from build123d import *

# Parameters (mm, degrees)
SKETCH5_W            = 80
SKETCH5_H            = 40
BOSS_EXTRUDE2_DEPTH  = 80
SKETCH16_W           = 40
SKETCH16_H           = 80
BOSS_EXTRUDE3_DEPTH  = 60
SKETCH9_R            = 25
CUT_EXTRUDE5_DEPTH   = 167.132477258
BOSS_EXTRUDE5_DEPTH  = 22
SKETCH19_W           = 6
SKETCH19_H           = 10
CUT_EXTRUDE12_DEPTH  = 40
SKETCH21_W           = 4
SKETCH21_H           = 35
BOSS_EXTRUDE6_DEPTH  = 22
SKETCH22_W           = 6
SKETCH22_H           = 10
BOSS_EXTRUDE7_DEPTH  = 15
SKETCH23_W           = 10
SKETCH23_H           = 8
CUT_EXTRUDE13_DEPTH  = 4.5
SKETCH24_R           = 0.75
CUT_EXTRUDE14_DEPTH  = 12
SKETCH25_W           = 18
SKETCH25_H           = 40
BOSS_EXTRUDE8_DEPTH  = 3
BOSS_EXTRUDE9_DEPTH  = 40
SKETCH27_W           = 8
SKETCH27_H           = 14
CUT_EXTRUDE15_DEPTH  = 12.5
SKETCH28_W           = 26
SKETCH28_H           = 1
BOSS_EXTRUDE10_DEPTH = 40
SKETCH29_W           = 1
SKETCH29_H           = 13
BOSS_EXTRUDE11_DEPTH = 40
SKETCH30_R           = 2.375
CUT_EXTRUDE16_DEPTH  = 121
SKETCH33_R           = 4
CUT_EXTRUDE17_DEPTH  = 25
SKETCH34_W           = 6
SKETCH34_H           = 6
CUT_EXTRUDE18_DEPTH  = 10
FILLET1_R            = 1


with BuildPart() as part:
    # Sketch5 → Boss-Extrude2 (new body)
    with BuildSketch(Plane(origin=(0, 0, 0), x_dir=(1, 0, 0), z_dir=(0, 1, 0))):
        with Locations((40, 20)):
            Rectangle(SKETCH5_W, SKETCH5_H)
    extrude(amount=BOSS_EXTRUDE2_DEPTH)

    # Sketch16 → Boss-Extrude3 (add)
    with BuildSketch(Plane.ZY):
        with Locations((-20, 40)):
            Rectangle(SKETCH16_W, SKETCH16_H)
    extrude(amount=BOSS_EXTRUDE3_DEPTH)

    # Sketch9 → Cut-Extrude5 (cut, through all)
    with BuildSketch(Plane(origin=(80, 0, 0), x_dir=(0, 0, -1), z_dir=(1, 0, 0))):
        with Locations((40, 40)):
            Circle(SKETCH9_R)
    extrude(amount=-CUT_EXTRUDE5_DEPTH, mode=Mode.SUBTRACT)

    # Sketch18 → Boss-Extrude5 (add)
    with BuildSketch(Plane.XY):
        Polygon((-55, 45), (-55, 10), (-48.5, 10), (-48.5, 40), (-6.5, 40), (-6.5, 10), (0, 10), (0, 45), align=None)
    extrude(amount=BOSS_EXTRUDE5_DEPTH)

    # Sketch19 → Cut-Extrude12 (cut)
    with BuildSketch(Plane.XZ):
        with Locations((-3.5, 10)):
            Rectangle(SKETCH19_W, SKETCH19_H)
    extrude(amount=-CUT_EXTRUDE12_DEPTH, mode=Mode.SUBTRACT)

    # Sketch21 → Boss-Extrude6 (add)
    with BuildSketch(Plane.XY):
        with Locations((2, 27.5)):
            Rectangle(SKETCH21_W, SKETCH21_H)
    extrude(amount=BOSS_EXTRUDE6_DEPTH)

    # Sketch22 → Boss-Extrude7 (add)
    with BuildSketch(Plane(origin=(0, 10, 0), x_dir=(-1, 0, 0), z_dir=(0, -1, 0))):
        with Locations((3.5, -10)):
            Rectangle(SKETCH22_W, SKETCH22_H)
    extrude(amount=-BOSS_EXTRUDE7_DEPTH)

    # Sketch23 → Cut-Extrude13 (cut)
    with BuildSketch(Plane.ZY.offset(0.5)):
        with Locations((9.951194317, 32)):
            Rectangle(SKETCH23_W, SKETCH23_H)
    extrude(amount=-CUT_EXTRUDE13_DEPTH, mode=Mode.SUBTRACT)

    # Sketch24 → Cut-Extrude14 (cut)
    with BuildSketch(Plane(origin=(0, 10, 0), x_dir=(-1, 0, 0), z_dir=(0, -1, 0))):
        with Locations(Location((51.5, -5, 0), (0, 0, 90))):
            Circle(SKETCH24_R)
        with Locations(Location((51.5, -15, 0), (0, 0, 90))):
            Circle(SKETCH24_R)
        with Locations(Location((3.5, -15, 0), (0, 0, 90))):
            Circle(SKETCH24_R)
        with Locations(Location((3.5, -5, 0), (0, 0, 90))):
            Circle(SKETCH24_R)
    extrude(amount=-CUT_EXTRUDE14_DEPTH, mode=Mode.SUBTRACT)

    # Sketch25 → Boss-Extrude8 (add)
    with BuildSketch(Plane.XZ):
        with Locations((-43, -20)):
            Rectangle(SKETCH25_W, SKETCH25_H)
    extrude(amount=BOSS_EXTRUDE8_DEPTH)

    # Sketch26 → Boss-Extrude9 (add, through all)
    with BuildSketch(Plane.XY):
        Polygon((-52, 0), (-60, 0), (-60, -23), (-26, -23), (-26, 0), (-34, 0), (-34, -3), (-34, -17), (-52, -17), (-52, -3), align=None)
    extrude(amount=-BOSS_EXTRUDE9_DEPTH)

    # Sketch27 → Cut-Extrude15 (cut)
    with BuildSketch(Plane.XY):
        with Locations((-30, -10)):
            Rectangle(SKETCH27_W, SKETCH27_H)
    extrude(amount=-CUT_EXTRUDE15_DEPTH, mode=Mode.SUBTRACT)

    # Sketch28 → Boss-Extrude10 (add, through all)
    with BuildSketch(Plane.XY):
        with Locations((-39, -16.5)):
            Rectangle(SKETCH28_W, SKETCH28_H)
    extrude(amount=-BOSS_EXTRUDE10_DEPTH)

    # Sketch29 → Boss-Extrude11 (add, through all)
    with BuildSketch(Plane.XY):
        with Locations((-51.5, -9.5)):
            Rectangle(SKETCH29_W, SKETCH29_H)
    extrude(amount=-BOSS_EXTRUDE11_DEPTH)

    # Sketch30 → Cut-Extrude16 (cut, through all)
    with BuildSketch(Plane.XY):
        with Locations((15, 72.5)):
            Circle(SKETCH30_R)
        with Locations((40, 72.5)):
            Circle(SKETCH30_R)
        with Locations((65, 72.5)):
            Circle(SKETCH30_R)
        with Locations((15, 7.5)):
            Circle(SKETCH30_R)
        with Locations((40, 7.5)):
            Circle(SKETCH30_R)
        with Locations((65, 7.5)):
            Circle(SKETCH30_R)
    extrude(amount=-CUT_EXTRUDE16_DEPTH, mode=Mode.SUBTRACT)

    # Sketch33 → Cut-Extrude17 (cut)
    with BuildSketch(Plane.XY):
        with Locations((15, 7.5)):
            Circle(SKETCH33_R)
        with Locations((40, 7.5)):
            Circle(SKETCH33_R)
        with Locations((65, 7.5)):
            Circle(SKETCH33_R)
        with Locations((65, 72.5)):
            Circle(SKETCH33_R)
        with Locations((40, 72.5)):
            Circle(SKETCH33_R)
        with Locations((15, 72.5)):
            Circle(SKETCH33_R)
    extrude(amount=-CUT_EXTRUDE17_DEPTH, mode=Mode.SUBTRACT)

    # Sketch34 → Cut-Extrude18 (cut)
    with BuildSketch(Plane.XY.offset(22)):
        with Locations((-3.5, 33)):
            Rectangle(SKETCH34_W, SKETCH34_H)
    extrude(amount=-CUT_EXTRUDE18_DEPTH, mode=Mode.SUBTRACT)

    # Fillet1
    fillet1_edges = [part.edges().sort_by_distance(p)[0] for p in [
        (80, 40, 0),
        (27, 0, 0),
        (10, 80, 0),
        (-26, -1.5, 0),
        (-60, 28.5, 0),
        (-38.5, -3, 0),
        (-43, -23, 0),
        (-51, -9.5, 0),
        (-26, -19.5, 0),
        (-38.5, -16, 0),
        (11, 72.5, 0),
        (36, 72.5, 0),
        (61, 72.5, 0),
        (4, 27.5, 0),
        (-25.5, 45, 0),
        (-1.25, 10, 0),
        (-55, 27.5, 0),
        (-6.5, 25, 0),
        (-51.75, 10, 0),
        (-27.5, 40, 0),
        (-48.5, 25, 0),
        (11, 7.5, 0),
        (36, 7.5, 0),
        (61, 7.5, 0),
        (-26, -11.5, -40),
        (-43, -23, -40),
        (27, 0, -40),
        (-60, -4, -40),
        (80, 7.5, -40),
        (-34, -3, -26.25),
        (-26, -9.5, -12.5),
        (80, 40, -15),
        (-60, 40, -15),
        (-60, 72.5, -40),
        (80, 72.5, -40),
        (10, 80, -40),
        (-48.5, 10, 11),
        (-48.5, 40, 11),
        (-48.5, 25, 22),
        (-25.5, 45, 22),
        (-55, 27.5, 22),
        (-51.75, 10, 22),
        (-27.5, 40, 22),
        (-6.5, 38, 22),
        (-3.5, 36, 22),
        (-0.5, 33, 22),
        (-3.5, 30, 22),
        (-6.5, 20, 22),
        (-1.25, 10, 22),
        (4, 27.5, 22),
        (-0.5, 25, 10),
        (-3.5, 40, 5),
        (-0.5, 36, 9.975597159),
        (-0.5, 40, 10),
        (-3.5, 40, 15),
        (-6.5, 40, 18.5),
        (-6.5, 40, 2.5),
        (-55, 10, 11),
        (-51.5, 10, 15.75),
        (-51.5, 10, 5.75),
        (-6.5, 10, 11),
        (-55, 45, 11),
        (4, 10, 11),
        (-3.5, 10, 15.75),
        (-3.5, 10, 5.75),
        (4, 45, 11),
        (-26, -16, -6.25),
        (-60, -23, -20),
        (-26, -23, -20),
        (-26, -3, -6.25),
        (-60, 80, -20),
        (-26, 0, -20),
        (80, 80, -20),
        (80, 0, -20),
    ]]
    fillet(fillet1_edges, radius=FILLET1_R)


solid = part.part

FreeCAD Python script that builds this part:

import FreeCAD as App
import Part
import Sketcher
Q = App.Units.Quantity


def edges_at(feature, points):
    """Names of the edges that pass closest to the given points."""
    edges = feature.Shape.Edges
    near = lambda p: min(range(len(edges)), key=lambda i: edges[i].distToShape(Part.Vertex(*p))[0])
    return sorted({f"Edge{near(p) + 1}" for p in points})

doc = App.newDocument("Part")
body = doc.addObject("PartDesign::Body", "Body")

sketch1 = body.newObject("Sketcher::SketchObject", "Sketch")
sketch1.AttachmentSupport = (doc.getObject("XZ_Plane"), [""])
sketch1.MapMode = "FlatFace"
sketch1.addGeometry(Part.LineSegment(App.Vector(0, -40, 0), App.Vector(0, 0, 0)), False)
sketch1.addGeometry(Part.LineSegment(App.Vector(0, 0, 0), App.Vector(80, 0, 0)), False)
sketch1.addGeometry(Part.LineSegment(App.Vector(80, 0, 0), App.Vector(80, -40, 0)), False)
sketch1.addGeometry(Part.LineSegment(App.Vector(80, -40, 0), App.Vector(0, -40, 0)), False)
sketch1.addConstraint(Sketcher.Constraint("Coincident", 0, 2, 1, 1))
sketch1.addConstraint(Sketcher.Constraint("Coincident", 1, 2, 2, 1))
sketch1.addConstraint(Sketcher.Constraint("Coincident", 2, 2, 3, 1))
sketch1.addConstraint(Sketcher.Constraint("Coincident", 3, 2, 0, 1))
sketch1.addConstraint(Sketcher.Constraint("Vertical", 0))
sketch1.addConstraint(Sketcher.Constraint("Horizontal", 1))
sketch1.addConstraint(Sketcher.Constraint("Vertical", 2))
sketch1.addConstraint(Sketcher.Constraint("Horizontal", 3))
sketch1.addConstraint(Sketcher.Constraint("Coincident", 0, 2, -1, 1))
sketch1.addConstraint(Sketcher.Constraint("DistanceX", 1, 1, 1, 2, Q("80 mm")))
sketch1.addConstraint(Sketcher.Constraint("DistanceY", 0, 1, 0, 2, Q("40 mm")))
pad1 = body.newObject("PartDesign::Pad", "Pad")
pad1.Profile = sketch1
pad1.Length = 80
pad1.Reversed = True

sketch2 = body.newObject("Sketcher::SketchObject", "Sketch001")
sketch2.AttachmentSupport = (doc.getObject("YZ_Plane"), [""])
sketch2.MapMode = "FlatFace"
sketch2.addGeometry(Part.LineSegment(App.Vector(80, -40, 0), App.Vector(0, -40, 0)), False)
sketch2.addGeometry(Part.LineSegment(App.Vector(0, -40, 0), App.Vector(0, 0, 0)), False)
sketch2.addGeometry(Part.LineSegment(App.Vector(0, 0, 0), App.Vector(80, 0, 0)), False)
sketch2.addGeometry(Part.LineSegment(App.Vector(80, 0, 0), App.Vector(80, -40, 0)), False)
sketch2.addConstraint(Sketcher.Constraint("Coincident", 0, 2, 1, 1))
sketch2.addConstraint(Sketcher.Constraint("Coincident", 1, 2, 2, 1))
sketch2.addConstraint(Sketcher.Constraint("Coincident", 2, 2, 3, 1))
sketch2.addConstraint(Sketcher.Constraint("Coincident", 3, 2, 0, 1))
sketch2.addConstraint(Sketcher.Constraint("Horizontal", 0))
sketch2.addConstraint(Sketcher.Constraint("Vertical", 1))
sketch2.addConstraint(Sketcher.Constraint("Horizontal", 2))
sketch2.addConstraint(Sketcher.Constraint("Vertical", 3))
sketch2.addConstraint(Sketcher.Constraint("Coincident", 1, 2, -1, 1))
sketch2.addConstraint(Sketcher.Constraint("DistanceX", 0, 2, 0, 1, Q("80 mm")))
sketch2.addConstraint(Sketcher.Constraint("DistanceY", 1, 1, 1, 2, Q("40 mm")))
pad2 = body.newObject("PartDesign::Pad", "Pad001")
pad2.Profile = sketch2
pad2.Length = 60
pad2.Reversed = True

sketch3 = body.newObject("Sketcher::SketchObject", "Sketch002")
sketch3.AttachmentSupport = (doc.getObject("YZ_Plane"), [""])
sketch3.MapMode = "FlatFace"
sketch3.AttachmentOffset = App.Placement(App.Vector(0, 0, 80), App.Rotation())
sketch3.addGeometry(Part.Circle(App.Vector(40, -40, 0), App.Vector(0, 0, 1), 25), False)
sketch3.addConstraint(Sketcher.Constraint("Diameter", 0, Q("50 mm")))
sketch3.addConstraint(Sketcher.Constraint("DistanceX", -1, 1, 0, 3, Q("40 mm")))
sketch3.addConstraint(Sketcher.Constraint("DistanceY", 0, 3, -1, 1, Q("40 mm")))
pocket1 = body.newObject("PartDesign::Pocket", "Pocket")
pocket1.Profile = sketch3
pocket1.Type = "ThroughAll"

sketch4 = body.newObject("Sketcher::SketchObject", "Sketch003")
sketch4.AttachmentSupport = (doc.getObject("XY_Plane"), [""])
sketch4.MapMode = "FlatFace"
sketch4.addGeometry(Part.LineSegment(App.Vector(-55, 45, 0), App.Vector(-55, 10, 0)), False)
sketch4.addGeometry(Part.LineSegment(App.Vector(-55, 10, 0), App.Vector(-48, 10, 0)), False)
sketch4.addGeometry(Part.LineSegment(App.Vector(-48, 10, 0), App.Vector(-48, 40, 0)), False)
sketch4.addGeometry(Part.LineSegment(App.Vector(-48, 40, 0), App.Vector(-6, 40, 0)), False)
sketch4.addGeometry(Part.LineSegment(App.Vector(-6, 40, 0), App.Vector(-6, 10, 0)), False)
sketch4.addGeometry(Part.LineSegment(App.Vector(-6, 10, 0), App.Vector(0, 10, 0)), False)
sketch4.addGeometry(Part.LineSegment(App.Vector(0, 10, 0), App.Vector(0, 45, 0)), False)
sketch4.addGeometry(Part.LineSegment(App.Vector(0, 45, 0), App.Vector(-55, 45, 0)), False)
sketch4.addConstraint(Sketcher.Constraint("Coincident", 0, 2, 1, 1))
sketch4.addConstraint(Sketcher.Constraint("Coincident", 1, 2, 2, 1))
sketch4.addConstraint(Sketcher.Constraint("Coincident", 2, 2, 3, 1))
sketch4.addConstraint(Sketcher.Constraint("Coincident", 3, 2, 4, 1))
sketch4.addConstraint(Sketcher.Constraint("Coincident", 4, 2, 5, 1))
sketch4.addConstraint(Sketcher.Constraint("Coincident", 5, 2, 6, 1))
sketch4.addConstraint(Sketcher.Constraint("Coincident", 6, 2, 7, 1))
sketch4.addConstraint(Sketcher.Constraint("Coincident", 7, 2, 0, 1))
sketch4.addConstraint(Sketcher.Constraint("Vertical", 0))
sketch4.addConstraint(Sketcher.Constraint("Horizontal", 1))
sketch4.addConstraint(Sketcher.Constraint("Vertical", 2))
sketch4.addConstraint(Sketcher.Constraint("Horizontal", 3))
sketch4.addConstraint(Sketcher.Constraint("Vertical", 4))
sketch4.addConstraint(Sketcher.Constraint("Horizontal", 5))
sketch4.addConstraint(Sketcher.Constraint("Vertical", 6))
sketch4.addConstraint(Sketcher.Constraint("Horizontal", 7))
sketch4.addConstraint(Sketcher.Constraint("PointOnObject", 5, 2, -2))
sketch4.addConstraint(Sketcher.Constraint("Horizontal", 1, 2, 4, 2))
sketch4.addConstraint(Sketcher.Constraint("Equal", 1, 5))
sketch4.addConstraint(Sketcher.Constraint("DistanceX", 3, 1, 3, 2, Q("42 mm")))
sketch4.addConstraint(Sketcher.Constraint("DistanceX", 7, 2, 7, 1, Q("55 mm")))
sketch4.addConstraint(Sketcher.Constraint("DistanceY", 0, 2, 0, 1, Q("35 mm")))
sketch4.addConstraint(Sketcher.Constraint("DistanceY", 2, 1, 2, 2, Q("30 mm")))
sketch4.addConstraint(Sketcher.Constraint("DistanceY", -1, 1, 0, 2, Q("10 mm")))
pad3 = body.newObject("PartDesign::Pad", "Pad002")
pad3.Profile = sketch4
pad3.Length = 22

sketch5 = body.newObject("Sketcher::SketchObject", "Sketch004")
sketch5.AttachmentSupport = (doc.getObject("XZ_Plane"), [""])
sketch5.MapMode = "FlatFace"
sketch5.addGeometry(Part.LineSegment(App.Vector(-6, 15, 0), App.Vector(-6, 5, 0)), False)
sketch5.addGeometry(Part.LineSegment(App.Vector(-6, 5, 0), App.Vector(0, 5, 0)), False)
sketch5.addGeometry(Part.LineSegment(App.Vector(0, 5, 0), App.Vector(0, 15, 0)), False)
sketch5.addGeometry(Part.LineSegment(App.Vector(0, 15, 0), App.Vector(-6, 15, 0)), False)
sketch5.addConstraint(Sketcher.Constraint("Coincident", 0, 2, 1, 1))
sketch5.addConstraint(Sketcher.Constraint("Coincident", 1, 2, 2, 1))
sketch5.addConstraint(Sketcher.Constraint("Coincident", 2, 2, 3, 1))
sketch5.addConstraint(Sketcher.Constraint("Coincident", 3, 2, 0, 1))
sketch5.addConstraint(Sketcher.Constraint("Vertical", 0))
sketch5.addConstraint(Sketcher.Constraint("Horizontal", 1))
sketch5.addConstraint(Sketcher.Constraint("Vertical", 2))
sketch5.addConstraint(Sketcher.Constraint("Horizontal", 3))
sketch5.addConstraint(Sketcher.Constraint("DistanceX", 1, 1, 1, 2, Q("6 mm")))
sketch5.addConstraint(Sketcher.Constraint("DistanceY", 0, 2, 0, 1, Q("10 mm")))
sketch5.addConstraint(Sketcher.Constraint("DistanceY", -1, 1, 0, 2, Q("5 mm")))
sketch5.addConstraint(Sketcher.Constraint("DistanceX", 0, 2, -1, 1, Q("6.5 mm")))
pocket2 = body.newObject("PartDesign::Pocket", "Pocket001")
pocket2.Profile = sketch5
pocket2.Length = 40

sketch6 = body.newObject("Sketcher::SketchObject", "Sketch005")
sketch6.AttachmentSupport = (doc.getObject("XY_Plane"), [""])
sketch6.MapMode = "FlatFace"
sketch6.addGeometry(Part.LineSegment(App.Vector(0, 45, 0), App.Vector(0, 10, 0)), False)
sketch6.addGeometry(Part.LineSegment(App.Vector(0, 10, 0), App.Vector(4, 10, 0)), False)
sketch6.addGeometry(Part.LineSegment(App.Vector(4, 10, 0), App.Vector(4, 45, 0)), False)
sketch6.addGeometry(Part.LineSegment(App.Vector(4, 45, 0), App.Vector(0, 45, 0)), False)
sketch6.addConstraint(Sketcher.Constraint("Coincident", 0, 2, 1, 1))
sketch6.addConstraint(Sketcher.Constraint("Coincident", 1, 2, 2, 1))
sketch6.addConstraint(Sketcher.Constraint("Coincident", 2, 2, 3, 1))
sketch6.addConstraint(Sketcher.Constraint("Coincident", 3, 2, 0, 1))
sketch6.addConstraint(Sketcher.Constraint("Vertical", 0))
sketch6.addConstraint(Sketcher.Constraint("Horizontal", 1))
sketch6.addConstraint(Sketcher.Constraint("Vertical", 2))
sketch6.addConstraint(Sketcher.Constraint("Horizontal", 3))
sketch6.addConstraint(Sketcher.Constraint("PointOnObject", 0, 2, -2))
sketch6.addConstraint(Sketcher.Constraint("DistanceX", 1, 1, 1, 2, Q("4 mm")))
sketch6.addConstraint(Sketcher.Constraint("DistanceY", 0, 2, 0, 1, Q("35 mm")))
sketch6.addConstraint(Sketcher.Constraint("DistanceY", -1, 1, 0, 2, Q("10 mm")))
pad4 = body.newObject("PartDesign::Pad", "Pad003")
pad4.Profile = sketch6
pad4.Length = 22

sketch7 = body.newObject("Sketcher::SketchObject", "Sketch006")
sketch7.AttachmentSupport = (doc.getObject("XZ_Plane"), [""])
sketch7.MapMode = "FlatFace"
sketch7.AttachmentOffset = App.Placement(App.Vector(0, 0, -10), App.Rotation())
sketch7.addGeometry(Part.LineSegment(App.Vector(0, 5, 0), App.Vector(0, 15, 0)), False)
sketch7.addGeometry(Part.LineSegment(App.Vector(0, 15, 0), App.Vector(-6, 15, 0)), False)
sketch7.addGeometry(Part.LineSegment(App.Vector(-6, 15, 0), App.Vector(-6, 5, 0)), False)
sketch7.addGeometry(Part.LineSegment(App.Vector(-6, 5, 0), App.Vector(0, 5, 0)), False)
sketch7.addConstraint(Sketcher.Constraint("Coincident", 0, 2, 1, 1))
sketch7.addConstraint(Sketcher.Constraint("Coincident", 1, 2, 2, 1))
sketch7.addConstraint(Sketcher.Constraint("Coincident", 2, 2, 3, 1))
sketch7.addConstraint(Sketcher.Constraint("Coincident", 3, 2, 0, 1))
sketch7.addConstraint(Sketcher.Constraint("Vertical", 0))
sketch7.addConstraint(Sketcher.Constraint("Horizontal", 1))
sketch7.addConstraint(Sketcher.Constraint("Vertical", 2))
sketch7.addConstraint(Sketcher.Constraint("Horizontal", 3))
sketch7.addConstraint(Sketcher.Constraint("DistanceX", 1, 2, 1, 1, Q("6 mm")))
sketch7.addConstraint(Sketcher.Constraint("DistanceY", 0, 1, 0, 2, Q("10 mm")))
sketch7.addConstraint(Sketcher.Constraint("DistanceY", -1, 1, 0, 2, Q("15 mm")))
sketch7.addConstraint(Sketcher.Constraint("DistanceX", 0, 2, -1, 1, Q("0.5 mm")))
pad5 = body.newObject("PartDesign::Pad", "Pad004")
pad5.Profile = sketch7
pad5.Length = 15
pad5.Reversed = True

sketch8 = body.newObject("Sketcher::SketchObject", "Sketch007")
sketch8.AttachmentSupport = (doc.getObject("YZ_Plane"), [""])
sketch8.MapMode = "FlatFace"
sketch8.AttachmentOffset = App.Placement(App.Vector(0, 0, -0.5), App.Rotation())
sketch8.addGeometry(Part.LineSegment(App.Vector(36, 5, 0), App.Vector(28, 5, 0)), False)
sketch8.addGeometry(Part.LineSegment(App.Vector(28, 5, 0), App.Vector(28, 15, 0)), False)
sketch8.addGeometry(Part.LineSegment(App.Vector(28, 15, 0), App.Vector(36, 15, 0)), False)
sketch8.addGeometry(Part.LineSegment(App.Vector(36, 15, 0), App.Vector(36, 5, 0)), False)
sketch8.addConstraint(Sketcher.Constraint("Coincident", 0, 2, 1, 1))
sketch8.addConstraint(Sketcher.Constraint("Coincident", 1, 2, 2, 1))
sketch8.addConstraint(Sketcher.Constraint("Coincident", 2, 2, 3, 1))
sketch8.addConstraint(Sketcher.Constraint("Coincident", 3, 2, 0, 1))
sketch8.addConstraint(Sketcher.Constraint("Horizontal", 0))
sketch8.addConstraint(Sketcher.Constraint("Vertical", 1))
sketch8.addConstraint(Sketcher.Constraint("Horizontal", 2))
sketch8.addConstraint(Sketcher.Constraint("Vertical", 3))
sketch8.addConstraint(Sketcher.Constraint("DistanceX", 0, 2, 0, 1, Q("8 mm")))
sketch8.addConstraint(Sketcher.Constraint("DistanceY", 1, 1, 1, 2, Q("10 mm")))
sketch8.addConstraint(Sketcher.Constraint("DistanceX", -1, 1, 0, 2, Q("28 mm")))
sketch8.addConstraint(Sketcher.Constraint("DistanceY", -1, 1, 0, 2, Q("4.951194 mm")))
pocket3 = body.newObject("PartDesign::Pocket", "Pocket002")
pocket3.Profile = sketch8
pocket3.Length = 4.5
pocket3.Reversed = True

sketch9 = body.newObject("Sketcher::SketchObject", "Sketch008")
sketch9.AttachmentSupport = (doc.getObject("XZ_Plane"), [""])
sketch9.MapMode = "FlatFace"
sketch9.AttachmentOffset = App.Placement(App.Vector(0, 0, -10), App.Rotation())
sketch9.addGeometry(Part.Circle(App.Vector(-51.5, 5, 0), App.Vector(0, 0, 1), 0.8), False)
sketch9.addGeometry(Part.Circle(App.Vector(-51.5, 15, 0), App.Vector(0, 0, 1), 0.8), False)
sketch9.addGeometry(Part.Circle(App.Vector(-3.5, 15, 0), App.Vector(0, 0, 1), 0.8), False)
sketch9.addGeometry(Part.Circle(App.Vector(-3.5, 5, 0), App.Vector(0, 0, 1), 0.8), False)
sketch9.addConstraint(Sketcher.Constraint("Equal", 0, 1))
sketch9.addConstraint(Sketcher.Constraint("Equal", 1, 2))
sketch9.addConstraint(Sketcher.Constraint("Equal", 2, 3))
sketch9.addConstraint(Sketcher.Constraint("Horizontal", 1, 3, 2, 3))
sketch9.addConstraint(Sketcher.Constraint("Horizontal", 0, 3, 3, 3))
sketch9.addConstraint(Sketcher.Constraint("Vertical", 0, 3, 1, 3))
sketch9.addConstraint(Sketcher.Constraint("Vertical", 2, 3, 3, 3))
sketch9.addConstraint(Sketcher.Constraint("Diameter", 0, Q("1.5 mm")))
sketch9.addConstraint(Sketcher.Constraint("DistanceY", -1, 1, 0, 3, Q("5 mm")))
sketch9.addConstraint(Sketcher.Constraint("DistanceY", -1, 1, 1, 3, Q("15 mm")))
sketch9.addConstraint(Sketcher.Constraint("DistanceX", 1, 3, 2, 3, Q("48 mm")))
sketch9.addConstraint(Sketcher.Constraint("DistanceX", 0, 3, -1, 1, Q("51.5 mm")))
pocket4 = body.newObject("PartDesign::Pocket", "Pocket003")
pocket4.Profile = sketch9
pocket4.Length = 12

sketch10 = body.newObject("Sketcher::SketchObject", "Sketch009")
sketch10.AttachmentSupport = (doc.getObject("XZ_Plane"), [""])
sketch10.MapMode = "FlatFace"
sketch10.addGeometry(Part.LineSegment(App.Vector(-52, 0, 0), App.Vector(-52, -40, 0)), False)
sketch10.addGeometry(Part.LineSegment(App.Vector(-52, -40, 0), App.Vector(-34, -40, 0)), False)
sketch10.addGeometry(Part.LineSegment(App.Vector(-34, -40, 0), App.Vector(-34, 0, 0)), False)
sketch10.addGeometry(Part.LineSegment(App.Vector(-34, 0, 0), App.Vector(-52, 0, 0)), False)
sketch10.addConstraint(Sketcher.Constraint("Coincident", 0, 2, 1, 1))
sketch10.addConstraint(Sketcher.Constraint("Coincident", 1, 2, 2, 1))
sketch10.addConstraint(Sketcher.Constraint("Coincident", 2, 2, 3, 1))
sketch10.addConstraint(Sketcher.Constraint("Coincident", 3, 2, 0, 1))
sketch10.addConstraint(Sketcher.Constraint("Vertical", 0))
sketch10.addConstraint(Sketcher.Constraint("Horizontal", 1))
sketch10.addConstraint(Sketcher.Constraint("Vertical", 2))
sketch10.addConstraint(Sketcher.Constraint("Horizontal", 3))
sketch10.addConstraint(Sketcher.Constraint("PointOnObject", 2, 2, -1))
sketch10.addConstraint(Sketcher.Constraint("DistanceX", 1, 1, 1, 2, Q("18 mm")))
sketch10.addConstraint(Sketcher.Constraint("DistanceY", 0, 2, 0, 1, Q("40 mm")))
sketch10.addConstraint(Sketcher.Constraint("DistanceX", 0, 2, -1, 1, Q("52 mm")))
pad6 = body.newObject("PartDesign::Pad", "Pad005")
pad6.Profile = sketch10
pad6.Length = 3

sketch11 = body.newObject("Sketcher::SketchObject", "Sketch010")
sketch11.AttachmentSupport = (doc.getObject("XY_Plane"), [""])
sketch11.MapMode = "FlatFace"
sketch11.addGeometry(Part.LineSegment(App.Vector(-52, 0, 0), App.Vector(-60, 0, 0)), False)
sketch11.addGeometry(Part.LineSegment(App.Vector(-60, 0, 0), App.Vector(-60, -23, 0)), False)
sketch11.addGeometry(Part.LineSegment(App.Vector(-60, -23, 0), App.Vector(-26, -23, 0)), False)
sketch11.addGeometry(Part.LineSegment(App.Vector(-26, -23, 0), App.Vector(-26, 0, 0)), False)
sketch11.addGeometry(Part.LineSegment(App.Vector(-26, 0, 0), App.Vector(-34, 0, 0)), False)
sketch11.addGeometry(Part.LineSegment(App.Vector(-34, 0, 0), App.Vector(-34, -17, 0)), False)
sketch11.addGeometry(Part.LineSegment(App.Vector(-34, -17, 0), App.Vector(-52, -17, 0)), False)
sketch11.addGeometry(Part.LineSegment(App.Vector(-52, -17, 0), App.Vector(-52, 0, 0)), False)
sketch11.addConstraint(Sketcher.Constraint("Coincident", 0, 2, 1, 1))
sketch11.addConstraint(Sketcher.Constraint("Coincident", 1, 2, 2, 1))
sketch11.addConstraint(Sketcher.Constraint("Coincident", 2, 2, 3, 1))
sketch11.addConstraint(Sketcher.Constraint("Coincident", 3, 2, 4, 1))
sketch11.addConstraint(Sketcher.Constraint("Coincident", 4, 2, 5, 1))
sketch11.addConstraint(Sketcher.Constraint("Coincident", 5, 2, 6, 1))
sketch11.addConstraint(Sketcher.Constraint("Coincident", 6, 2, 7, 1))
sketch11.addConstraint(Sketcher.Constraint("Coincident", 7, 2, 0, 1))
sketch11.addConstraint(Sketcher.Constraint("Horizontal", 0))
sketch11.addConstraint(Sketcher.Constraint("Vertical", 1))
sketch11.addConstraint(Sketcher.Constraint("Horizontal", 2))
sketch11.addConstraint(Sketcher.Constraint("Vertical", 3))
sketch11.addConstraint(Sketcher.Constraint("Horizontal", 4))
sketch11.addConstraint(Sketcher.Constraint("Vertical", 5))
sketch11.addConstraint(Sketcher.Constraint("Horizontal", 6))
sketch11.addConstraint(Sketcher.Constraint("Vertical", 7))
sketch11.addConstraint(Sketcher.Constraint("PointOnObject", 0, 2, -1))
sketch11.addConstraint(Sketcher.Constraint("PointOnObject", 3, 2, -1))
sketch11.addConstraint(Sketcher.Constraint("Equal", 0, 4))
sketch11.addConstraint(Sketcher.Constraint("DistanceX", 0, 2, 0, 1, Q("8 mm")))
sketch11.addConstraint(Sketcher.Constraint("DistanceX", 2, 1, 2, 2, Q("34 mm")))
sketch11.addConstraint(Sketcher.Constraint("DistanceY", 1, 2, 1, 1, Q("23 mm")))
sketch11.addConstraint(Sketcher.Constraint("DistanceY", 5, 2, 5, 1, Q("17 mm")))
sketch11.addConstraint(Sketcher.Constraint("DistanceX", 0, 2, -1, 1, Q("60 mm")))
pad7 = body.newObject("PartDesign::Pad", "Pad006")
pad7.Profile = sketch11
pad7.Length = 40
pad7.Reversed = True

sketch12 = body.newObject("Sketcher::SketchObject", "Sketch011")
sketch12.AttachmentSupport = (doc.getObject("XY_Plane"), [""])
sketch12.MapMode = "FlatFace"
sketch12.addGeometry(Part.LineSegment(App.Vector(-34, -3, 0), App.Vector(-34, -17, 0)), False)
sketch12.addGeometry(Part.LineSegment(App.Vector(-34, -17, 0), App.Vector(-26, -17, 0)), False)
sketch12.addGeometry(Part.LineSegment(App.Vector(-26, -17, 0), App.Vector(-26, -3, 0)), False)
sketch12.addGeometry(Part.LineSegment(App.Vector(-26, -3, 0), App.Vector(-34, -3, 0)), False)
sketch12.addConstraint(Sketcher.Constraint("Coincident", 0, 2, 1, 1))
sketch12.addConstraint(Sketcher.Constraint("Coincident", 1, 2, 2, 1))
sketch12.addConstraint(Sketcher.Constraint("Coincident", 2, 2, 3, 1))
sketch12.addConstraint(Sketcher.Constraint("Coincident", 3, 2, 0, 1))
sketch12.addConstraint(Sketcher.Constraint("Vertical", 0))
sketch12.addConstraint(Sketcher.Constraint("Horizontal", 1))
sketch12.addConstraint(Sketcher.Constraint("Vertical", 2))
sketch12.addConstraint(Sketcher.Constraint("Horizontal", 3))
sketch12.addConstraint(Sketcher.Constraint("DistanceX", 1, 1, 1, 2, Q("8 mm")))
sketch12.addConstraint(Sketcher.Constraint("DistanceY", 0, 2, 0, 1, Q("14 mm")))
sketch12.addConstraint(Sketcher.Constraint("DistanceX", 0, 2, -1, 1, Q("34 mm")))
sketch12.addConstraint(Sketcher.Constraint("DistanceY", 0, 2, -1, 1, Q("17 mm")))
pocket5 = body.newObject("PartDesign::Pocket", "Pocket004")
pocket5.Profile = sketch12
pocket5.Length = 12.5

sketch13 = body.newObject("Sketcher::SketchObject", "Sketch012")
sketch13.AttachmentSupport = (doc.getObject("XY_Plane"), [""])
sketch13.MapMode = "FlatFace"
sketch13.addGeometry(Part.LineSegment(App.Vector(-52, -16, 0), App.Vector(-52, -17, 0)), False)
sketch13.addGeometry(Part.LineSegment(App.Vector(-52, -17, 0), App.Vector(-26, -17, 0)), False)
sketch13.addGeometry(Part.LineSegment(App.Vector(-26, -17, 0), App.Vector(-26, -16, 0)), False)
sketch13.addGeometry(Part.LineSegment(App.Vector(-26, -16, 0), App.Vector(-52, -16, 0)), False)
sketch13.addConstraint(Sketcher.Constraint("Coincident", 0, 2, 1, 1))
sketch13.addConstraint(Sketcher.Constraint("Coincident", 1, 2, 2, 1))
sketch13.addConstraint(Sketcher.Constraint("Coincident", 2, 2, 3, 1))
sketch13.addConstraint(Sketcher.Constraint("Coincident", 3, 2, 0, 1))
sketch13.addConstraint(Sketcher.Constraint("Vertical", 0))
sketch13.addConstraint(Sketcher.Constraint("Horizontal", 1))
sketch13.addConstraint(Sketcher.Constraint("Vertical", 2))
sketch13.addConstraint(Sketcher.Constraint("Horizontal", 3))
sketch13.addConstraint(Sketcher.Constraint("DistanceX", 1, 1, 1, 2, Q("26 mm")))
sketch13.addConstraint(Sketcher.Constraint("DistanceY", 0, 2, 0, 1, Q("1 mm")))
sketch13.addConstraint(Sketcher.Constraint("DistanceX", 0, 2, -1, 1, Q("52 mm")))
sketch13.addConstraint(Sketcher.Constraint("DistanceY", 0, 2, -1, 1, Q("17 mm")))
pad8 = body.newObject("PartDesign::Pad", "Pad007")
pad8.Profile = sketch13
pad8.Length = 40
pad8.Reversed = True

sketch14 = body.newObject("Sketcher::SketchObject", "Sketch013")
sketch14.AttachmentSupport = (doc.getObject("XY_Plane"), [""])
sketch14.MapMode = "FlatFace"
sketch14.addGeometry(Part.LineSegment(App.Vector(-52, -3, 0), App.Vector(-52, -16, 0)), False)
sketch14.addGeometry(Part.LineSegment(App.Vector(-52, -16, 0), App.Vector(-51, -16, 0)), False)
sketch14.addGeometry(Part.LineSegment(App.Vector(-51, -16, 0), App.Vector(-51, -3, 0)), False)
sketch14.addGeometry(Part.LineSegment(App.Vector(-51, -3, 0), App.Vector(-52, -3, 0)), False)
sketch14.addConstraint(Sketcher.Constraint("Coincident", 0, 2, 1, 1))
sketch14.addConstraint(Sketcher.Constraint("Coincident", 1, 2, 2, 1))
sketch14.addConstraint(Sketcher.Constraint("Coincident", 2, 2, 3, 1))
sketch14.addConstraint(Sketcher.Constraint("Coincident", 3, 2, 0, 1))
sketch14.addConstraint(Sketcher.Constraint("Vertical", 0))
sketch14.addConstraint(Sketcher.Constraint("Horizontal", 1))
sketch14.addConstraint(Sketcher.Constraint("Vertical", 2))
sketch14.addConstraint(Sketcher.Constraint("Horizontal", 3))
sketch14.addConstraint(Sketcher.Constraint("DistanceX", 1, 1, 1, 2, Q("1 mm")))
sketch14.addConstraint(Sketcher.Constraint("DistanceY", 0, 2, 0, 1, Q("13 mm")))
sketch14.addConstraint(Sketcher.Constraint("DistanceX", 0, 2, -1, 1, Q("52 mm")))
sketch14.addConstraint(Sketcher.Constraint("DistanceY", 0, 2, -1, 1, Q("16 mm")))
pad9 = body.newObject("PartDesign::Pad", "Pad008")
pad9.Profile = sketch14
pad9.Length = 40
pad9.Reversed = True

sketch15 = body.newObject("Sketcher::SketchObject", "Sketch014")
sketch15.AttachmentSupport = (doc.getObject("XY_Plane"), [""])
sketch15.MapMode = "FlatFace"
sketch15.addGeometry(Part.Circle(App.Vector(15, 72.5, 0), App.Vector(0, 0, 1), 2.4), False)
sketch15.addGeometry(Part.Circle(App.Vector(40, 72.5, 0), App.Vector(0, 0, 1), 2.4), False)
sketch15.addGeometry(Part.Circle(App.Vector(65, 72.5, 0), App.Vector(0, 0, 1), 2.4), False)
sketch15.addGeometry(Part.Circle(App.Vector(15, 7.5, 0), App.Vector(0, 0, 1), 2.4), False)
sketch15.addGeometry(Part.Circle(App.Vector(40, 7.5, 0), App.Vector(0, 0, 1), 2.4), False)
sketch15.addGeometry(Part.Circle(App.Vector(65, 7.5, 0), App.Vector(0, 0, 1), 2.4), False)
sketch15.addConstraint(Sketcher.Constraint("Equal", 0, 1))
sketch15.addConstraint(Sketcher.Constraint("Equal", 1, 2))
sketch15.addConstraint(Sketcher.Constraint("Equal", 2, 3))
sketch15.addConstraint(Sketcher.Constraint("Equal", 3, 4))
sketch15.addConstraint(Sketcher.Constraint("Equal", 4, 5))
sketch15.addConstraint(Sketcher.Constraint("Horizontal", 0, 3, 1, 3))
sketch15.addConstraint(Sketcher.Constraint("Horizontal", 1, 3, 2, 3))
sketch15.addConstraint(Sketcher.Constraint("Horizontal", 3, 3, 4, 3))
sketch15.addConstraint(Sketcher.Constraint("Horizontal", 4, 3, 5, 3))
sketch15.addConstraint(Sketcher.Constraint("Vertical", 0, 3, 3, 3))
sketch15.addConstraint(Sketcher.Constraint("Vertical", 1, 3, 4, 3))
sketch15.addConstraint(Sketcher.Constraint("Vertical", 2, 3, 5, 3))
sketch15.addConstraint(Sketcher.Constraint("Diameter", 0, Q("4.75 mm")))
sketch15.addConstraint(Sketcher.Constraint("DistanceX", -1, 1, 0, 3, Q("15 mm")))
sketch15.addConstraint(Sketcher.Constraint("DistanceX", -1, 1, 1, 3, Q("40 mm")))
sketch15.addConstraint(Sketcher.Constraint("DistanceX", -1, 1, 2, 3, Q("65 mm")))
sketch15.addConstraint(Sketcher.Constraint("DistanceY", 3, 3, 0, 3, Q("65 mm")))
sketch15.addConstraint(Sketcher.Constraint("DistanceY", -1, 1, 0, 3, Q("72.5 mm")))
pocket6 = body.newObject("PartDesign::Pocket", "Pocket005")
pocket6.Profile = sketch15
pocket6.Type = "ThroughAll"

sketch16 = body.newObject("Sketcher::SketchObject", "Sketch015")
sketch16.AttachmentSupport = (doc.getObject("XY_Plane"), [""])
sketch16.MapMode = "FlatFace"
sketch16.addGeometry(Part.Circle(App.Vector(15, 7.5, 0), App.Vector(0, 0, 1), 4), False)
sketch16.addGeometry(Part.Circle(App.Vector(40, 7.5, 0), App.Vector(0, 0, 1), 4), False)
sketch16.addGeometry(Part.Circle(App.Vector(65, 7.5, 0), App.Vector(0, 0, 1), 4), False)
sketch16.addGeometry(Part.Circle(App.Vector(65, 72.5, 0), App.Vector(0, 0, 1), 4), False)
sketch16.addGeometry(Part.Circle(App.Vector(40, 72.5, 0), App.Vector(0, 0, 1), 4), False)
sketch16.addGeometry(Part.Circle(App.Vector(15, 72.5, 0), App.Vector(0, 0, 1), 4), False)
sketch16.addConstraint(Sketcher.Constraint("Equal", 0, 1))
sketch16.addConstraint(Sketcher.Constraint("Equal", 1, 2))
sketch16.addConstraint(Sketcher.Constraint("Equal", 2, 3))
sketch16.addConstraint(Sketcher.Constraint("Equal", 3, 4))
sketch16.addConstraint(Sketcher.Constraint("Equal", 4, 5))
sketch16.addConstraint(Sketcher.Constraint("Horizontal", 0, 3, 1, 3))
sketch16.addConstraint(Sketcher.Constraint("Horizontal", 1, 3, 2, 3))
sketch16.addConstraint(Sketcher.Constraint("Horizontal", 3, 3, 4, 3))
sketch16.addConstraint(Sketcher.Constraint("Horizontal", 4, 3, 5, 3))
sketch16.addConstraint(Sketcher.Constraint("Vertical", 2, 3, 3, 3))
sketch16.addConstraint(Sketcher.Constraint("Vertical", 1, 3, 4, 3))
sketch16.addConstraint(Sketcher.Constraint("Vertical", 0, 3, 5, 3))
sketch16.addConstraint(Sketcher.Constraint("Diameter", 0, Q("8 mm")))
sketch16.addConstraint(Sketcher.Constraint("DistanceX", -1, 1, 0, 3, Q("15 mm")))
sketch16.addConstraint(Sketcher.Constraint("DistanceX", -1, 1, 1, 3, Q("40 mm")))
sketch16.addConstraint(Sketcher.Constraint("DistanceX", -1, 1, 2, 3, Q("65 mm")))
sketch16.addConstraint(Sketcher.Constraint("DistanceY", 2, 3, 3, 3, Q("65 mm")))
sketch16.addConstraint(Sketcher.Constraint("DistanceY", -1, 1, 0, 3, Q("7.5 mm")))
pocket7 = body.newObject("PartDesign::Pocket", "Pocket006")
pocket7.Profile = sketch16
pocket7.Length = 25

sketch17 = body.newObject("Sketcher::SketchObject", "Sketch016")
sketch17.AttachmentSupport = (doc.getObject("XY_Plane"), [""])
sketch17.MapMode = "FlatFace"
sketch17.AttachmentOffset = App.Placement(App.Vector(0, 0, 22), App.Rotation())
sketch17.addGeometry(Part.LineSegment(App.Vector(-6, 36, 0), App.Vector(-6, 30, 0)), False)
sketch17.addGeometry(Part.LineSegment(App.Vector(-6, 30, 0), App.Vector(0, 30, 0)), False)
sketch17.addGeometry(Part.LineSegment(App.Vector(0, 30, 0), App.Vector(0, 36, 0)), False)
sketch17.addGeometry(Part.LineSegment(App.Vector(0, 36, 0), App.Vector(-6, 36, 0)), False)
sketch17.addConstraint(Sketcher.Constraint("Coincident", 0, 2, 1, 1))
sketch17.addConstraint(Sketcher.Constraint("Coincident", 1, 2, 2, 1))
sketch17.addConstraint(Sketcher.Constraint("Coincident", 2, 2, 3, 1))
sketch17.addConstraint(Sketcher.Constraint("Coincident", 3, 2, 0, 1))
sketch17.addConstraint(Sketcher.Constraint("Vertical", 0))
sketch17.addConstraint(Sketcher.Constraint("Horizontal", 1))
sketch17.addConstraint(Sketcher.Constraint("Vertical", 2))
sketch17.addConstraint(Sketcher.Constraint("Horizontal", 3))
sketch17.addConstraint(Sketcher.Constraint("Equal", 3, 0))
sketch17.addConstraint(Sketcher.Constraint("DistanceX", 1, 1, 1, 2, Q("6 mm")))
sketch17.addConstraint(Sketcher.Constraint("DistanceY", -1, 1, 0, 2, Q("30 mm")))
sketch17.addConstraint(Sketcher.Constraint("DistanceX", 0, 2, -1, 1, Q("6.5 mm")))
pocket8 = body.newObject("PartDesign::Pocket", "Pocket007")
pocket8.Profile = sketch17
pocket8.Length = 10
doc.recompute()

fillet = body.newObject("PartDesign::Fillet", "Fillet")
fillet.Base = (pocket8, edges_at(pocket8, [
    (80, 40, 0),
    (27, 0, 0),
    (10, 80, 0),
    (-26, -1.5, 0),
    (-60, 28.5, 0),
    (-38.5, -3, 0),
    (-43, -23, 0),
    (-51, -9.5, 0),
    (-26, -19.5, 0),
    (-38.5, -16, 0),
    (11, 72.5, 0),
    (36, 72.5, 0),
    (61, 72.5, 0),
    (4, 27.5, 0),
    (-25.5, 45, 0),
    (-1.25, 10, 0),
    (-55, 27.5, 0),
    (-6.5, 25, 0),
    (-51.75, 10, 0),
    (-27.5, 40, 0),
    (-48.5, 25, 0),
    (11, 7.5, 0),
    (36, 7.5, 0),
    (61, 7.5, 0),
    (-26, -11.5, -40),
    (-43, -23, -40),
    (27, 0, -40),
    (-60, -4, -40),
    (80, 7.5, -40),
    (-34, -3, -26.25),
    (-26, -9.5, -12.5),
    (80, 40, -15),
    (-60, 40, -15),
    (-60, 72.5, -40),
    (80, 72.5, -40),
    (10, 80, -40),
    (-48.5, 10, 11),
    (-48.5, 40, 11),
    (-48.5, 25, 22),
    (-25.5, 45, 22),
    (-55, 27.5, 22),
    (-51.75, 10, 22),
    (-27.5, 40, 22),
    (-6.5, 38, 22),
    (-3.5, 36, 22),
    (-0.5, 33, 22),
    (-3.5, 30, 22),
    (-6.5, 20, 22),
    (-1.25, 10, 22),
    (4, 27.5, 22),
    (-0.5, 25, 10),
    (-3.5, 40, 5),
    (-0.5, 36, 9.976),
    (-0.5, 40, 10),
    (-3.5, 40, 15),
    (-6.5, 40, 18.5),
    (-6.5, 40, 2.5),
    (-55, 10, 11),
    (-51.5, 10, 15.75),
    (-51.5, 10, 5.75),
    (-6.5, 10, 11),
    (-55, 45, 11),
    (4, 10, 11),
    (-3.5, 10, 15.75),
    (-3.5, 10, 5.75),
    (4, 45, 11),
    (-26, -16, -6.25),
    (-60, -23, -20),
    (-26, -23, -20),
    (-26, -3, -6.25),
    (-60, 80, -20),
    (-26, 0, -20),
    (80, 80, -20),
    (80, 0, -20),
]))
fillet.Radius = 1

doc.recompute()
